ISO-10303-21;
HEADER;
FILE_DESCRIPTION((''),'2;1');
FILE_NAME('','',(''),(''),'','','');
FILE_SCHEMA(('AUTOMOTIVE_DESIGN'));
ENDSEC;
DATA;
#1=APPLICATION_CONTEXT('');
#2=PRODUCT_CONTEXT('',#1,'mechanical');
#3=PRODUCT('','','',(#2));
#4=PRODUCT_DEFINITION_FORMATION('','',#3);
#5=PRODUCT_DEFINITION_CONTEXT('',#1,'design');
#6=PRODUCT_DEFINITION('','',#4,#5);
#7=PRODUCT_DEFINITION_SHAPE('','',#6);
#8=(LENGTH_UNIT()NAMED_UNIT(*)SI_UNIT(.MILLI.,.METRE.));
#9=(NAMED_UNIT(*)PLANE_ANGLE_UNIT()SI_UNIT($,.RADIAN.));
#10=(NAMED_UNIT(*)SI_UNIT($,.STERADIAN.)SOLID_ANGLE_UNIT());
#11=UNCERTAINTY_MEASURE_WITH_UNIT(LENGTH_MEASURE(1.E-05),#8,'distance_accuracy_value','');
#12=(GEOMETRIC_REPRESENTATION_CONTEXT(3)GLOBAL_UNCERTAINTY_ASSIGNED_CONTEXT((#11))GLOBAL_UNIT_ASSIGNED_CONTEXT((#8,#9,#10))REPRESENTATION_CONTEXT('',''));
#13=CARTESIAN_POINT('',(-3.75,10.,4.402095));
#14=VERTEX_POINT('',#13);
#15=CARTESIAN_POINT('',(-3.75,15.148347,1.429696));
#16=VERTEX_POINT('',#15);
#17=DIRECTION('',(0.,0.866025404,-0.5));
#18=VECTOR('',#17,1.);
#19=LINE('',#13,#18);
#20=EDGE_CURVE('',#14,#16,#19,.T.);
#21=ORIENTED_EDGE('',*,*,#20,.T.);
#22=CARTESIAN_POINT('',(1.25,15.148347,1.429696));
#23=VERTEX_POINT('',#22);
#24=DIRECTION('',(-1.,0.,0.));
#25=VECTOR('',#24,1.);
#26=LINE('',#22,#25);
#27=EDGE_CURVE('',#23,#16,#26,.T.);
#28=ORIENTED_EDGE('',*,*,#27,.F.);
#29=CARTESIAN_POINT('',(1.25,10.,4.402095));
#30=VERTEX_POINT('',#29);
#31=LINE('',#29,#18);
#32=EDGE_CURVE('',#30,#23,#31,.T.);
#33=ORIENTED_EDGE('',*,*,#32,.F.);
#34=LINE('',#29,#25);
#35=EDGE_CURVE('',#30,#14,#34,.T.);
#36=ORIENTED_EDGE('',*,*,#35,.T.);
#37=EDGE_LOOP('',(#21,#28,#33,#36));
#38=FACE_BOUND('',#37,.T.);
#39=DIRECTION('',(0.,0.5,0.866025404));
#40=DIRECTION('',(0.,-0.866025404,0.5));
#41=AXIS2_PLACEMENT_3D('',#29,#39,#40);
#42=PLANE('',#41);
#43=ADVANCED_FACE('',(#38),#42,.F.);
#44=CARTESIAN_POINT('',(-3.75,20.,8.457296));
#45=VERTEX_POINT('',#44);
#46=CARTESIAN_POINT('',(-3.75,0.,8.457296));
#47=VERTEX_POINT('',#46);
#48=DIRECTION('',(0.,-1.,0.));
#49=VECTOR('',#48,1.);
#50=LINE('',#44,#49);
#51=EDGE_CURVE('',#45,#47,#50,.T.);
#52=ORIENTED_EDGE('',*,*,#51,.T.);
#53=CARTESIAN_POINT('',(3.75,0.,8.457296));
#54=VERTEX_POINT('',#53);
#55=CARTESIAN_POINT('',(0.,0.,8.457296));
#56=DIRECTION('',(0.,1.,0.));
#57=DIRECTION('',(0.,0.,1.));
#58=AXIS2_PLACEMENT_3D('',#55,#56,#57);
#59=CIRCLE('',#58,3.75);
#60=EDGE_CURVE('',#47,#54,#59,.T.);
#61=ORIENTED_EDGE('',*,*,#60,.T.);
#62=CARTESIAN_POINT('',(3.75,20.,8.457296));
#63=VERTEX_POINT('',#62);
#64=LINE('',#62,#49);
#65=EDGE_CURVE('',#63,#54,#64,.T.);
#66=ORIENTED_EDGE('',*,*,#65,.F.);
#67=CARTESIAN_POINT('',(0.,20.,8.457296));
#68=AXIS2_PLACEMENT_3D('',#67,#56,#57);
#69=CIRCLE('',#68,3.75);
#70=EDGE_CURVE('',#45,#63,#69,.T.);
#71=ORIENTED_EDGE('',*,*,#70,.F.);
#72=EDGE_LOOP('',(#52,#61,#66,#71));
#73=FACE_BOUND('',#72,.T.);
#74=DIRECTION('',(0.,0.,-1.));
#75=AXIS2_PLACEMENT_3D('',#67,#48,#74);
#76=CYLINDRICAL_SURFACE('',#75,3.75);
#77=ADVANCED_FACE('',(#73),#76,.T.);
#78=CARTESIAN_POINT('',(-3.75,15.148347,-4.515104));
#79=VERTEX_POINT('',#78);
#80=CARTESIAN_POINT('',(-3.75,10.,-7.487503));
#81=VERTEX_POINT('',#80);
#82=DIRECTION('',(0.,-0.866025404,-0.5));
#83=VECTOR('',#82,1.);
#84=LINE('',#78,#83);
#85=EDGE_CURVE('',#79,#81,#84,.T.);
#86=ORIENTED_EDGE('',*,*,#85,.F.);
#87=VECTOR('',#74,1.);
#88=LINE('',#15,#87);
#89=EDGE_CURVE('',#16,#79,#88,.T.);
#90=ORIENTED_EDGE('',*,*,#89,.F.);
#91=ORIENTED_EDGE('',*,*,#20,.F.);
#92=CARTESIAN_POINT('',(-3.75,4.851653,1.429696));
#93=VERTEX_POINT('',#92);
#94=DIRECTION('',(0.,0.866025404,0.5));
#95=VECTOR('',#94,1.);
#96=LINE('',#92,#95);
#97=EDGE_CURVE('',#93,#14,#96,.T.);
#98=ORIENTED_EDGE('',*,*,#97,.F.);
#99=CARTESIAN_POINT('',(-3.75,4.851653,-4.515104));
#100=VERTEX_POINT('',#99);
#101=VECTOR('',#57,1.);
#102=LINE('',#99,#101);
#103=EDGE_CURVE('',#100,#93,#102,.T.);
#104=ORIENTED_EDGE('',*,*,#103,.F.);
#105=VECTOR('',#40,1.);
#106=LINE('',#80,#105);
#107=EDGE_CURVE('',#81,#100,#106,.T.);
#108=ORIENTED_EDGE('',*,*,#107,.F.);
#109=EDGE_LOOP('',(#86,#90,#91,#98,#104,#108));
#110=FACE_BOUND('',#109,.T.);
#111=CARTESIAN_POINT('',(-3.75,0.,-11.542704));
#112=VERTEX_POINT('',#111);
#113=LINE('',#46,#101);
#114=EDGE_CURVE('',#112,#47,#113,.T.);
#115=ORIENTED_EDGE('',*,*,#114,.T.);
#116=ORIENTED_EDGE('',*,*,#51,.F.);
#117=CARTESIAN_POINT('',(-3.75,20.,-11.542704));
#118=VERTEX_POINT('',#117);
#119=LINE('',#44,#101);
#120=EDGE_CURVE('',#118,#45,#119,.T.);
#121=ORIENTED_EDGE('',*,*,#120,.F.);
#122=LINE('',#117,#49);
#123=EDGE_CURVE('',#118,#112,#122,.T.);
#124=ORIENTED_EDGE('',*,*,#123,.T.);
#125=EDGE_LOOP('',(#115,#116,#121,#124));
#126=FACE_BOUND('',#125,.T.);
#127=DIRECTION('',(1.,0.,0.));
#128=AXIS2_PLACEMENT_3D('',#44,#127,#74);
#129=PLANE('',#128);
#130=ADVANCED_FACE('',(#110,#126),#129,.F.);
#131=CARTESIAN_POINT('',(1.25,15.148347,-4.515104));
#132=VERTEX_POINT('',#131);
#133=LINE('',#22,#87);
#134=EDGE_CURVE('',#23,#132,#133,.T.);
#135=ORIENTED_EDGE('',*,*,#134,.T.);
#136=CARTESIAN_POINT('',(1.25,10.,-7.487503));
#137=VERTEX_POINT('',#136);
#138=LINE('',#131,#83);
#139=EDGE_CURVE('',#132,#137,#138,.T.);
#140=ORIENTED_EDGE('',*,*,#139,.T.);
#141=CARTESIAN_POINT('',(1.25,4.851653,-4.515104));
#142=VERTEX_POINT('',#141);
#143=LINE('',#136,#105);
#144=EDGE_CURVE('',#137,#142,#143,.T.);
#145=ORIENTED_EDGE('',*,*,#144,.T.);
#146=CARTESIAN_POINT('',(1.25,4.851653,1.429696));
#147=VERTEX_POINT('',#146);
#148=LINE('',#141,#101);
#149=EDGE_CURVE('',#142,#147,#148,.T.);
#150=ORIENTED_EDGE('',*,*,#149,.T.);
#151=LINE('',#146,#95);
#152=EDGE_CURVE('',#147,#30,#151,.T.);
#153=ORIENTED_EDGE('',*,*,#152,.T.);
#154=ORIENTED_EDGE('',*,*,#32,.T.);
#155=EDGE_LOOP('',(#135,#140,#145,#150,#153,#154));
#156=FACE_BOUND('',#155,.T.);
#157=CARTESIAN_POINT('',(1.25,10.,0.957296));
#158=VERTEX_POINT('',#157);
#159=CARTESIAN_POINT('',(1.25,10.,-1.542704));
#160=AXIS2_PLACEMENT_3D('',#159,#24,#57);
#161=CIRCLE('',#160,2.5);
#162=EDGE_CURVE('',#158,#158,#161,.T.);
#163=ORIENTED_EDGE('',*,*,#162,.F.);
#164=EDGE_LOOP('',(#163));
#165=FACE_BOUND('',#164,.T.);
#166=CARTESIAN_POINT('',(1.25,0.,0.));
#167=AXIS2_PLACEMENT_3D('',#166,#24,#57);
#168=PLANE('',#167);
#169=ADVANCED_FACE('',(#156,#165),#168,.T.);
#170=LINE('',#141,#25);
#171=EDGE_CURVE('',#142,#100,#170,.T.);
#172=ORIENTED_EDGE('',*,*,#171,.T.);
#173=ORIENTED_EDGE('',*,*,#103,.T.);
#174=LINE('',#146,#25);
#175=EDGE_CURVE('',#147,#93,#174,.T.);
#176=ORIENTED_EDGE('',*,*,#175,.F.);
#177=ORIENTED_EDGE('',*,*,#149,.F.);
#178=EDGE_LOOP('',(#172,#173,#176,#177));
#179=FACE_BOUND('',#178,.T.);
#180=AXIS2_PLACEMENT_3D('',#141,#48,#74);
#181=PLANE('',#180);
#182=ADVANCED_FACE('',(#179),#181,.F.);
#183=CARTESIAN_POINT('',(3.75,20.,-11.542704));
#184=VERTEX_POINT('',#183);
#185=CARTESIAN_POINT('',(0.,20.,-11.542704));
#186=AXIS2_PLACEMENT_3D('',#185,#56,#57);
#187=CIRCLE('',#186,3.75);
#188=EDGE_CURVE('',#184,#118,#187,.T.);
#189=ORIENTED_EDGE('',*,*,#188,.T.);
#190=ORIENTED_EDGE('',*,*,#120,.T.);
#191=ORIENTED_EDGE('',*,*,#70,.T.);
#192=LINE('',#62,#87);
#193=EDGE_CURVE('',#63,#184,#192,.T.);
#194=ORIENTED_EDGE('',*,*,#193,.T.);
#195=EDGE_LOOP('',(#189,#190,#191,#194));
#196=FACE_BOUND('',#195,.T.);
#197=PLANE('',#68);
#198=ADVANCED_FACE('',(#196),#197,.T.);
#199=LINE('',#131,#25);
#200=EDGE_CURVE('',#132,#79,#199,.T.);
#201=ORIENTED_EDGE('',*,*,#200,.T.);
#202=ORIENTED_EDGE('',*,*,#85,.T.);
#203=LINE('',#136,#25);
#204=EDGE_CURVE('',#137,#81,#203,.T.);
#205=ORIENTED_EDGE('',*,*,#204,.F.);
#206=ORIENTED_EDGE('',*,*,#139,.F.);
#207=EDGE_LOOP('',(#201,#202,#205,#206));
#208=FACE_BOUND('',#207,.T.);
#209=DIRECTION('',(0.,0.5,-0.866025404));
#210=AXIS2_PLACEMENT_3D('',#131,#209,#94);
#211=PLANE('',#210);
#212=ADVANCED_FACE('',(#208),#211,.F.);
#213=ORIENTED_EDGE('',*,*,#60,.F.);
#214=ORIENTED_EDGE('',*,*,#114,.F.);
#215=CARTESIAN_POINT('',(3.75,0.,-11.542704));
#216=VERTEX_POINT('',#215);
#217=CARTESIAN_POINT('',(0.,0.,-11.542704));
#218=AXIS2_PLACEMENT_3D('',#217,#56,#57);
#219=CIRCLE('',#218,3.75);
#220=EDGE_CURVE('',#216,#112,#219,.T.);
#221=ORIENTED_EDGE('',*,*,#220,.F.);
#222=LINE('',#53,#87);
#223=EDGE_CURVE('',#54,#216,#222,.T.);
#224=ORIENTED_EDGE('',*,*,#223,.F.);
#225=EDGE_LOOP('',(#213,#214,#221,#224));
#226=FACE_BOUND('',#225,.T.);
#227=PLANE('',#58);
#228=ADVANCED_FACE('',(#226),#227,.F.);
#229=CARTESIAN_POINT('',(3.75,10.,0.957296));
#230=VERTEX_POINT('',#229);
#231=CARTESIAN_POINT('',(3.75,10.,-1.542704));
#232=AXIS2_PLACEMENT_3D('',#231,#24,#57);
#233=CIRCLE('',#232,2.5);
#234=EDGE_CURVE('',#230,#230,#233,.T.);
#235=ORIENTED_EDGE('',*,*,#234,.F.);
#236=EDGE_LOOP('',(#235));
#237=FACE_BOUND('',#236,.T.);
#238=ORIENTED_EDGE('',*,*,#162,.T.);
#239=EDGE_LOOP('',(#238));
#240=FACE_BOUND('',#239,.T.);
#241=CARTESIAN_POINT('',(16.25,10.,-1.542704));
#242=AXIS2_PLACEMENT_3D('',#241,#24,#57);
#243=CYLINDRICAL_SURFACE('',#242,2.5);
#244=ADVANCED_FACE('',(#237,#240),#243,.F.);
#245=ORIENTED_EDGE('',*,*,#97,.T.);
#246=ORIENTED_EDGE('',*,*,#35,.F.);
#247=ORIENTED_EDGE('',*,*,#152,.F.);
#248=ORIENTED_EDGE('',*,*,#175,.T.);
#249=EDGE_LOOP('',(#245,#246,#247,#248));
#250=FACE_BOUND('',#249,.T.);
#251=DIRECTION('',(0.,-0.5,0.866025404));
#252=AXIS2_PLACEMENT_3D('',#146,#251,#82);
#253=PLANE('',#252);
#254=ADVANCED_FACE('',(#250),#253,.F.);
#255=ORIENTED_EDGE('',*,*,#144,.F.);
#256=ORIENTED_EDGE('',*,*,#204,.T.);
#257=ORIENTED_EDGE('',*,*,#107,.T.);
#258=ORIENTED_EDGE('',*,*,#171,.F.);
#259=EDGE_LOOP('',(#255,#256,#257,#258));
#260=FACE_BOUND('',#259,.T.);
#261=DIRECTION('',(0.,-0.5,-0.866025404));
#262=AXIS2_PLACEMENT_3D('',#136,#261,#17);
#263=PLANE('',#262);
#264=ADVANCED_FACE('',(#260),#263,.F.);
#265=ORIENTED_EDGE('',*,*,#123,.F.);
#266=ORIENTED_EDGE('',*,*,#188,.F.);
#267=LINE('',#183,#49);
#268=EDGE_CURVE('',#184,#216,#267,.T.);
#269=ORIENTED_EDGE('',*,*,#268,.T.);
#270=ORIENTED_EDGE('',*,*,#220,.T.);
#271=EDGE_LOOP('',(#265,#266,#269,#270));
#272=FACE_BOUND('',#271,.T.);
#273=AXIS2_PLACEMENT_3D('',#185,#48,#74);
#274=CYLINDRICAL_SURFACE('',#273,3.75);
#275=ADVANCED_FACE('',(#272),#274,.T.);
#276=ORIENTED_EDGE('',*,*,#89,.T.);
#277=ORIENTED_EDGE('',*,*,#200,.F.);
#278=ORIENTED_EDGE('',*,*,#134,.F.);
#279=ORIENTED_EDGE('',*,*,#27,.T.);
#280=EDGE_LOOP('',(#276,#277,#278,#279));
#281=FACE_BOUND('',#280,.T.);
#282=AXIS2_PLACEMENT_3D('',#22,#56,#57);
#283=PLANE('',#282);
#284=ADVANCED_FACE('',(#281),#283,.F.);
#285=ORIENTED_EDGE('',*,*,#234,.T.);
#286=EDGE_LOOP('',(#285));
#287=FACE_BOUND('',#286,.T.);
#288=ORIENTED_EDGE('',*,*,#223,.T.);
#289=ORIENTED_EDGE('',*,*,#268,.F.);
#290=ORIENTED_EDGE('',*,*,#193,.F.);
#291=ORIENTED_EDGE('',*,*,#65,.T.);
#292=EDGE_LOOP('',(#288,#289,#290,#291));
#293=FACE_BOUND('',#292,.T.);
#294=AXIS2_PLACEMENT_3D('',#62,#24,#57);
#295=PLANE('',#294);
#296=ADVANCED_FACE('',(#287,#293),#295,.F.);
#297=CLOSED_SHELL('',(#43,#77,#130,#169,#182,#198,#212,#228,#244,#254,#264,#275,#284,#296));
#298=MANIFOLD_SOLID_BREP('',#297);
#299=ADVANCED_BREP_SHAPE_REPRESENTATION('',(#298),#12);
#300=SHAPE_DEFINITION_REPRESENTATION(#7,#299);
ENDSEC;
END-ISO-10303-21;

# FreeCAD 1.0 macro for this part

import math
import FreeCAD as App
import Part
import Sketcher

V = App.Vector
Q = App.Units.Quantity


def add_polygon(sketch, points):
    """Adds a closed chain of lines whose ends are joined by coincident constraints."""
    first, n = sketch.GeometryCount, len(points)
    for a, b in zip(points, points[1:] + points[:1]):
        sketch.addGeometry(Part.LineSegment(App.Vector(*a, 0), App.Vector(*b, 0)), False)
    for i in range(n):
        sketch.addConstraint(Sketcher.Constraint("Coincident", first + i, 2, first + (i + 1) % n, 1))

doc = App.newDocument("Part")
body = doc.addObject("PartDesign::Body", "Body")

sketch1 = body.newObject("Sketcher::SketchObject", "Sketch")
sketch1.AttachmentSupport = (doc.getObject("XZ_Plane"), [""])
sketch1.MapMode = "FlatFace"
sketch1.addGeometry(Part.LineSegment(V(-3.8, -11.5, 0), V(-3.8, 8.5, 0)), False)
sketch1.addGeometry(Part.ArcOfCircle(Part.Circle(V(0, 8.5, 0), V(0, 0, 1), 3.8), math.radians(0), math.radians(180)), False)
sketch1.addGeometry(Part.LineSegment(V(3.8, 8.5, 0), V(3.8, -11.5, 0)), False)
sketch1.addGeometry(Part.ArcOfCircle(Part.Circle(V(0, -11.5, 0), V(0, 0, 1), 3.8), math.radians(180), math.radians(360)), False)
sketch1.addConstraint(Sketcher.Constraint("Tangent", 0, 2, 1, 2))
sketch1.addConstraint(Sketcher.Constraint("Tangent", 1, 1, 2, 1))
sketch1.addConstraint(Sketcher.Constraint("Tangent", 2, 2, 3, 2))
sketch1.addConstraint(Sketcher.Constraint("Tangent", 3, 1, 0, 1))
sketch1.addConstraint(Sketcher.Constraint("Vertical", 0))
sketch1.addConstraint(Sketcher.Constraint("Vertical", 2))
sketch1.addConstraint(Sketcher.Constraint("PointOnObject", 1, 3, -2))
sketch1.addConstraint(Sketcher.Constraint("DistanceY", 0, 1, 0, 2, Q("20 mm")))
sketch1.addConstraint(Sketcher.Constraint("Radius", 1, Q("3.75 mm")))
sketch1.addConstraint(Sketcher.Constraint("DistanceY", -1, 1, 1, 3, Q("8.457296 mm")))
pad1 = body.newObject("PartDesign::Pad", "Pad")
pad1.Profile = sketch1
pad1.Length = 20
pad1.Reversed = True

sketch2 = body.newObject("Sketcher::SketchObject", "Sketch001")
sketch2.AttachmentSupport = (doc.getObject("YZ_Plane"), [""])
sketch2.MapMode = "FlatFace"
sketch2.AttachmentOffset = App.Placement(V(0, 0, -3.75), App.Rotation())
sketch2.addGeometry(Part.Circle(V(10, -1.5, 0), V(0, 0, 1), 2.5), False)
sketch2.addConstraint(Sketcher.Constraint("Diameter", 0, Q("5 mm")))
sketch2.addConstraint(Sketcher.Constraint("DistanceX", -1, 1, 0, 3, Q("10 mm")))
sketch2.addConstraint(Sketcher.Constraint("DistanceY", 0, 3, -1, 1, Q("1.542704 mm")))
pocket1 = body.newObject("PartDesign::Pocket", "Pocket")
pocket1.Profile = sketch2
pocket1.Length = 20
pocket1.Reversed = True

sketch3 = body.newObject("Sketcher::SketchObject", "Sketch002")
sketch3.AttachmentSupport = (doc.getObject("YZ_Plane"), [""])
sketch3.MapMode = "FlatFace"
sketch3.AttachmentOffset = App.Placement(V(0, 0, -3.75), App.Rotation())
add_polygon(sketch3, [(10, 4.4), (15.1, 1.4), (15.1, -4.5), (10, -7.5), (4.9, -4.5), (4.9, 1.4)])
sketch3.addGeometry(Part.Circle(V(10, -1.5, 0), V(0, 0, 1), 2.5), False)
sketch3.addConstraint(Sketcher.Constraint("Vertical", 1))
sketch3.addConstraint(Sketcher.Constraint("Vertical", 4))
sketch3.addConstraint(Sketcher.Constraint("Parallel", 0, 3))
sketch3.addConstraint(Sketcher.Constraint("Parallel", 2, 5))
sketch3.addConstraint(Sketcher.Constraint("Horizontal", 1, 2, 3, 2))
sketch3.addConstraint(Sketcher.Constraint("Horizontal", 0, 2, 4, 2))
sketch3.addConstraint(Sketcher.Constraint("Vertical", 6, 3, 2, 2))
sketch3.addConstraint(Sketcher.Constraint("Vertical", 2, 2, 5, 2))
sketch3.addConstraint(Sketcher.Constraint("Diameter", 6, Q("5 mm")))
sketch3.addConstraint(Sketcher.Constraint("Angle", 0, Q("-30 deg")))
sketch3.addConstraint(Sketcher.Constraint("DistanceX", -1, 1, 6, 3, Q("10 mm")))
sketch3.addConstraint(Sketcher.Constraint("DistanceY", 1, 2, 1, 1, Q("5.944799 mm")))
sketch3.addConstraint(Sketcher.Constraint("Distance", 0, Q("5.944799 mm")))
sketch3.addConstraint(Sketcher.Constraint("DistanceY", 6, 3, 0, 2, Q("2.9724 mm")))
sketch3.addConstraint(Sketcher.Constraint("DistanceY", 6, 3, -1, 1, Q("1.542704 mm")))
pocket2 = body.newObject("PartDesign::Pocket", "Pocket001")
pocket2.Profile = sketch3
pocket2.Length = 5
pocket2.Reversed = True

doc.recompute()
